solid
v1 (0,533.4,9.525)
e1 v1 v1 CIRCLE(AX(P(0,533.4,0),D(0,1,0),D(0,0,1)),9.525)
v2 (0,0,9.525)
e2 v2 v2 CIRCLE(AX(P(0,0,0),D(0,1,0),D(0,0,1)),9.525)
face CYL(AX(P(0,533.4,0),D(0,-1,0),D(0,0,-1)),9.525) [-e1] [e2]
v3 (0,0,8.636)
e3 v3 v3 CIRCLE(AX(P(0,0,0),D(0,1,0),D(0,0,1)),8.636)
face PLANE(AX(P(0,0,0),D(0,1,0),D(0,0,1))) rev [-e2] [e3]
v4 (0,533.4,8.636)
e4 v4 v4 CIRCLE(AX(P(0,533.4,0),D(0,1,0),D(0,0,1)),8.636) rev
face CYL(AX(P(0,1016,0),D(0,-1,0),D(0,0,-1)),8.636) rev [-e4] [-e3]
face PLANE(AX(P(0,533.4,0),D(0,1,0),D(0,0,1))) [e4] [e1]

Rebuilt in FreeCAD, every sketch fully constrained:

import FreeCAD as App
import Part
import Sketcher
Q = App.Units.Quantity

doc = App.newDocument("Part")
body = doc.addObject("PartDesign::Body", "Body")

# Sketch on XZ plane
sketch1 = doc.addObject("Sketcher::SketchObject", "Sketch")
body.addObject(sketch1)
sketch1.AttachmentSupport = (doc.XZ_Plane, [""])
sketch1.MapMode = "FlatFace"
sketch1.addGeometry(Part.Circle(App.Vector(0, 0, 0), App.Vector(0, 0, 1), 9.525), False)
sketch1.addConstraint([
    Sketcher.Constraint("Coincident", 0, 3, -1, 1),
    Sketcher.Constraint("Diameter", 0, Q("0.75 in")),
])
pad1 = doc.addObject("PartDesign::Pad", "Pad")
body.addObject(pad1)
pad1.Profile = sketch1
pad1.Length = Q("21 in")
pad1.Reversed = True

# Sketch on XZ plane
sketch2 = doc.addObject("Sketcher::SketchObject", "Sketch001")
body.addObject(sketch2)
sketch2.AttachmentSupport = (doc.XZ_Plane, [""])
sketch2.MapMode = "FlatFace"
sketch2.addGeometry(Part.Circle(App.Vector(0, 0, 0), App.Vector(0, 0, 1), 8.636), False)
sketch2.addConstraint([
    Sketcher.Constraint("Coincident", 0, 3, -1, 1),
    Sketcher.Constraint("Diameter", 0, Q("0.68 in")),
])
pocket1 = doc.addObject("PartDesign::Pocket", "Pocket")
body.addObject(pocket1)
pocket1.Profile = sketch2
pocket1.Length = Q("40 in")

doc.recompute()
